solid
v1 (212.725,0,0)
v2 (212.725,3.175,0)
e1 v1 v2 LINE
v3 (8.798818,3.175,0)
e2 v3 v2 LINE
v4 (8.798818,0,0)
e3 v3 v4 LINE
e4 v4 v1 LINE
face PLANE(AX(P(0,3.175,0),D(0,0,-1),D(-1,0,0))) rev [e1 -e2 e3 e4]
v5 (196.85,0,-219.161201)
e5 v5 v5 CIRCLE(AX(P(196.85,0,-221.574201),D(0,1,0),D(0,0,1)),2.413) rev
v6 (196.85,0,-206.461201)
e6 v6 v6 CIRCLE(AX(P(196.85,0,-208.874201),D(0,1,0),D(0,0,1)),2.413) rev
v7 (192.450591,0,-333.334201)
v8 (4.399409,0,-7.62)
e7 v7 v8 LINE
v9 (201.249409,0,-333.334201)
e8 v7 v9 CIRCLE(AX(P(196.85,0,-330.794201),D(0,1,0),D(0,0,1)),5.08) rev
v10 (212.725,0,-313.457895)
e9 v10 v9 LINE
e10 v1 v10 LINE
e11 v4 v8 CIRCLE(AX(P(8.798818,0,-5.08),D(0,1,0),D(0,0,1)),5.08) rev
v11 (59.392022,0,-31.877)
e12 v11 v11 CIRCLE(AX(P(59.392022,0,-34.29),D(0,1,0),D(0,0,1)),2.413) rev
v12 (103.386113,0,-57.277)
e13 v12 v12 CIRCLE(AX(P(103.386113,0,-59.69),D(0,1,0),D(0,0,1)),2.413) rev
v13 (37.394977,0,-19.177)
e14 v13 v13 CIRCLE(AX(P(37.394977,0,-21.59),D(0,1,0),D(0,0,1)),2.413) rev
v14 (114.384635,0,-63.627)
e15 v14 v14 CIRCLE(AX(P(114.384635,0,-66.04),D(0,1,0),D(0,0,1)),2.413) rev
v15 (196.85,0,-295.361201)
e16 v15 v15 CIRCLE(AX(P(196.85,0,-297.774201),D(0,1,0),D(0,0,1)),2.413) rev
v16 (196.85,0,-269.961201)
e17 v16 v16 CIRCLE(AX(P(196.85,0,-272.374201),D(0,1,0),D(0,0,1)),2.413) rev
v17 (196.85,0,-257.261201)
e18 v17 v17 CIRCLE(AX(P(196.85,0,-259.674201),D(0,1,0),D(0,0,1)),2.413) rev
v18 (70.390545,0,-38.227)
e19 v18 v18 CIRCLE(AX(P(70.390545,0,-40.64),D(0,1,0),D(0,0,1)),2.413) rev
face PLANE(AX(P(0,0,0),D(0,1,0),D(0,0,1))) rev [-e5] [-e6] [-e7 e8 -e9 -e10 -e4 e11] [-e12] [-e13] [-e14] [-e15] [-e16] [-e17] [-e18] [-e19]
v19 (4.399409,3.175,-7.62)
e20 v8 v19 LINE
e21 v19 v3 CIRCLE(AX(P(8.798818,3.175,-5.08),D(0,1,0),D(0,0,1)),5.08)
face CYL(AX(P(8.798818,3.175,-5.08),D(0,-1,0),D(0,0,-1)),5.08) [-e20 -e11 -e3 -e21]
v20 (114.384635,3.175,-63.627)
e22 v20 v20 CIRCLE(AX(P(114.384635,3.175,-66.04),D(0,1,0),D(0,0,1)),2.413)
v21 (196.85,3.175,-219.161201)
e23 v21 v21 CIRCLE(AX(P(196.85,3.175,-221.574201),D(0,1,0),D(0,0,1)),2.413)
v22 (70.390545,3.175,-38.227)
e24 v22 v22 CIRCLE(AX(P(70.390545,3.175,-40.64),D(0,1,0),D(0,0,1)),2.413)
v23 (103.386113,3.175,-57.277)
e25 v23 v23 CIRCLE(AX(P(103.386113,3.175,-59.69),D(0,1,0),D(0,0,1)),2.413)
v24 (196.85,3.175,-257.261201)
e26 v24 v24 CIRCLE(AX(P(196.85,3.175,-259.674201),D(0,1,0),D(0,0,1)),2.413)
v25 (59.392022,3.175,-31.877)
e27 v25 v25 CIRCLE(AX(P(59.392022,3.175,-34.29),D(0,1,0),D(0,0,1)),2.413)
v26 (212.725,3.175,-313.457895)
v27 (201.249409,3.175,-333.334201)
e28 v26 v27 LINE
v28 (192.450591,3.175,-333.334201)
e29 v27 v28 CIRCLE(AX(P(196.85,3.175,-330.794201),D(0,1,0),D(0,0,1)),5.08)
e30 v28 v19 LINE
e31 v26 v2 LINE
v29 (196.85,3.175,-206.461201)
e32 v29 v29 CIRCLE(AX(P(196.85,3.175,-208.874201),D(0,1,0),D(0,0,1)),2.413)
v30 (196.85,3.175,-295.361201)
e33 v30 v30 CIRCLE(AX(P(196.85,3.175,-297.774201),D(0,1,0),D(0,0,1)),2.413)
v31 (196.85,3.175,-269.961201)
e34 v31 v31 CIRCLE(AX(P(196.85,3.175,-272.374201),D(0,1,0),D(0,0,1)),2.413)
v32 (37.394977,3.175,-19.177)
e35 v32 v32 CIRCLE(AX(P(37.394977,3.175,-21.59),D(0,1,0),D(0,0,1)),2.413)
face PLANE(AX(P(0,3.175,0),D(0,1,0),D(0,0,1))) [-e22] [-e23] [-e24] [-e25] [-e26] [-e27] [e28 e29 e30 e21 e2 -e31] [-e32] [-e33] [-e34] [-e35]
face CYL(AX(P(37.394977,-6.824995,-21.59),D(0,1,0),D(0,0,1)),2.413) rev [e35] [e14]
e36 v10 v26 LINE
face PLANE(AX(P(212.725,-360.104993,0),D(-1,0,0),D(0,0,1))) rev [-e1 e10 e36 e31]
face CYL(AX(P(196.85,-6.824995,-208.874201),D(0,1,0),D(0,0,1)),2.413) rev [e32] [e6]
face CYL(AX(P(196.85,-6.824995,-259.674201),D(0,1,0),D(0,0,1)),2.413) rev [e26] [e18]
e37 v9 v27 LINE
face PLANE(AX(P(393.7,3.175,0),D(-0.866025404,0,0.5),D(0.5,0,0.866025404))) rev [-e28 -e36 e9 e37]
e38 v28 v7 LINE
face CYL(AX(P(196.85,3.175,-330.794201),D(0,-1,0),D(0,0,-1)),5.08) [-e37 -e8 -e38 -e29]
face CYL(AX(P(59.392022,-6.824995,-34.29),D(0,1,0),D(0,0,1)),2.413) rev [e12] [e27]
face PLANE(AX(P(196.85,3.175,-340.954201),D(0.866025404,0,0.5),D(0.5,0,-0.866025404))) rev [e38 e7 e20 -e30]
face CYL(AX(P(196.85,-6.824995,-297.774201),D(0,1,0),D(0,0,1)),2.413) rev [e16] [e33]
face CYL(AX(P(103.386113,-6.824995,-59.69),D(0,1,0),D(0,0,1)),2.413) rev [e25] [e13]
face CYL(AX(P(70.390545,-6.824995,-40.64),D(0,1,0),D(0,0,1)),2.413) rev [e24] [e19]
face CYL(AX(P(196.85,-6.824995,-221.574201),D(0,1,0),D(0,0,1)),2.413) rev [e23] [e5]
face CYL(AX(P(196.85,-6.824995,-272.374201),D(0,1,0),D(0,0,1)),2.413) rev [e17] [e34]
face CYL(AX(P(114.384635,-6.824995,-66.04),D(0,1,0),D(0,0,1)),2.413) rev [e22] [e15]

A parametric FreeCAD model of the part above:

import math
import FreeCAD as App
import Part
import Sketcher
from FreeCAD import Vector
Q = App.Units.Quantity


def edges_at(feature, points):
    """Names of the edges that pass closest to the given points."""
    edges = feature.Shape.Edges
    near = lambda p: min(range(len(edges)), key=lambda i: edges[i].distToShape(Part.Vertex(*p))[0])
    return sorted({f"Edge{near(p) + 1}" for p in points})


def add_polygon(sketch, points):
    """Adds a closed chain of lines whose ends are joined by coincident constraints."""
    first, n = sketch.GeometryCount, len(points)
    for a, b in zip(points, points[1:] + points[:1]):
        sketch.addGeometry(Part.LineSegment(App.Vector(*a, 0), App.Vector(*b, 0)), False)
    for i in range(n):
        sketch.addConstraint(Sketcher.Constraint("Coincident", first + i, 2, first + (i + 1) % n, 1))

doc = App.newDocument("Part")
body = doc.addObject("PartDesign::Body", "Body")

# Sketch on XZ plane
sketch1 = body.newObject("Sketcher::SketchObject", "Sketch")
sketch1.AttachmentSupport = (doc.getObject("XZ_Plane"), [""])
sketch1.MapMode = "FlatFace"
add_polygon(sketch1, [(0, 0), (394, 0), (197, -341)])  # lines 0-2
sketch1.addConstraint(Sketcher.Constraint("Horizontal", 0))
sketch1.addConstraint(Sketcher.Constraint("Coincident", 2, 2, -1, 1))
sketch1.addConstraint(Sketcher.Constraint("Equal", 1, 2))
sketch1.addConstraint(Sketcher.Constraint("DistanceX", 0, 1, 0, 2, Q("15.5 in")))
sketch1.addConstraint(Sketcher.Constraint("Angle", 1, Q("-120 deg")))
pad1 = body.newObject("PartDesign::Pad", "Pad")
pad1.Profile = sketch1
pad1.Length = Q("0.125 in")
pad1.Reversed = True
doc.recompute()

fillet = body.newObject("PartDesign::Fillet", "Fillet")
fillet.Base = (pad1, edges_at(pad1, [(196.85, 1.587, -340.954), (393.7, 1.587, 0), (0, 1.587, 0)]))
fillet.Radius = Q("0.2 in")

# Sketch on XZ plane
sketch2 = body.newObject("Sketcher::SketchObject", "Sketch001")
sketch2.AttachmentSupport = (doc.getObject("XZ_Plane"), [""])
sketch2.MapMode = "FlatFace"
sketch2.AttachmentOffset = App.Placement(Vector(0, 0, -0.125 * 25.4), App.Rotation())
sketch2.addGeometry(Part.Circle(Vector(37.4, -21.6, 0), Vector(0, 0, 1), 2.4), False)
sketch2.addGeometry(Part.Circle(Vector(59.4, -34.3, 0), Vector(0, 0, 1), 2.4), False)
sketch2.addGeometry(Part.Circle(Vector(70.4, -40.6, 0), Vector(0, 0, 1), 2.4), False)
sketch2.addGeometry(Part.Circle(Vector(114.4, -66, 0), Vector(0, 0, 1), 2.4), False)
sketch2.addGeometry(Part.Circle(Vector(103.4, -59.7, 0), Vector(0, 0, 1), 2.4), False)
sketch2.addGeometry(Part.Circle(Vector(196.8, -297.8, 0), Vector(0, 0, 1), 2.4), False)
sketch2.addGeometry(Part.Circle(Vector(196.8, -272.4, 0), Vector(0, 0, 1), 2.4), False)
sketch2.addGeometry(Part.Circle(Vector(196.8, -259.7, 0), Vector(0, 0, 1), 2.4), False)
sketch2.addGeometry(Part.Circle(Vector(196.8, -221.6, 0), Vector(0, 0, 1), 2.4), False)
sketch2.addGeometry(Part.Circle(Vector(196.8, -208.9, 0), Vector(0, 0, 1), 2.4), False)
sketch2.addGeometry(Part.Circle(Vector(279.3, -66, 0), Vector(0, 0, 1), 2.4), False)
sketch2.addGeometry(Part.Circle(Vector(290.3, -59.7, 0), Vector(0, 0, 1), 2.4), False)
sketch2.addGeometry(Part.Circle(Vector(323.3, -40.6, 0), Vector(0, 0, 1), 2.4), False)
sketch2.addGeometry(Part.Circle(Vector(334.3, -34.3, 0), Vector(0, 0, 1), 2.4), False)
sketch2.addGeometry(Part.Circle(Vector(356.3, -21.6, 0), Vector(0, 0, 1), 2.4), False)
sketch2.addConstraint(Sketcher.Constraint("Equal", 0, 1))
sketch2.addConstraint(Sketcher.Constraint("Equal", 1, 2))
sketch2.addConstraint(Sketcher.Constraint("Equal", 2, 3))
sketch2.addConstraint(Sketcher.Constraint("Equal", 3, 4))
sketch2.addConstraint(Sketcher.Constraint("Equal", 4, 5))
sketch2.addConstraint(Sketcher.Constraint("Equal", 5, 6))
sketch2.addConstraint(Sketcher.Constraint("Equal", 6, 7))
sketch2.addConstraint(Sketcher.Constraint("Equal", 7, 8))
sketch2.addConstraint(Sketcher.Constraint("Equal", 8, 9))
sketch2.addConstraint(Sketcher.Constraint("Equal", 9, 10))
sketch2.addConstraint(Sketcher.Constraint("Equal", 10, 11))
sketch2.addConstraint(Sketcher.Constraint("Equal", 11, 12))
sketch2.addConstraint(Sketcher.Constraint("Equal", 12, 13))
sketch2.addConstraint(Sketcher.Constraint("Equal", 13, 14))
sketch2.addConstraint(Sketcher.Constraint("Horizontal", 3, 3, 10, 3))
sketch2.addConstraint(Sketcher.Constraint("Horizontal", 4, 3, 11, 3))
sketch2.addConstraint(Sketcher.Constraint("Horizontal", 2, 3, 12, 3))
sketch2.addConstraint(Sketcher.Constraint("Horizontal", 1, 3, 13, 3))
sketch2.addConstraint(Sketcher.Constraint("Horizontal", 0, 3, 14, 3))
sketch2.addConstraint(Sketcher.Constraint("Vertical", 5, 3, 6, 3))
sketch2.addConstraint(Sketcher.Constraint("Vertical", 6, 3, 7, 3))
sketch2.addConstraint(Sketcher.Constraint("Vertical", 7, 3, 8, 3))
sketch2.addConstraint(Sketcher.Constraint("Vertical", 8, 3, 9, 3))
sketch2.addConstraint(Sketcher.Constraint("Diameter", 0, Q("0.19 in")))
sketch2.addConstraint(Sketcher.Constraint("DistanceY", 3, 3, 2, 3, Q("1 in")))
sketch2.addConstraint(Sketcher.Constraint("DistanceY", 4, 3, 1, 3, Q("1 in")))
sketch2.addConstraint(Sketcher.Constraint("DistanceY", 5, 3, 6, 3, Q("1 in")))
sketch2.addConstraint(Sketcher.Constraint("DistanceY", 6, 3, 8, 3, Q("2 in")))
sketch2.addConstraint(Sketcher.Constraint("DistanceY", 7, 3, 9, 3, Q("2 in")))
sketch2.addConstraint(Sketcher.Constraint("DistanceY", 2, 3, -1, 1, Q("1.6 in")))
sketch2.addConstraint(Sketcher.Constraint("DistanceY", 1, 3, 0, 3, Q("0.5 in")))
sketch2.addConstraint(Sketcher.Constraint("DistanceY", 6, 3, 7, 3, Q("0.5 in")))
sketch2.addConstraint(Sketcher.Constraint("DistanceY", 0, 3, -1, 1, Q("0.85 in")))
sketch2.addConstraint(Sketcher.Constraint("DistanceX", -1, 1, 5, 3, Q("7.75 in")))
sketch2.addConstraint(Sketcher.Constraint("DistanceY", 5, 3, -1, 1, Q("297.774201 mm")))
sketch2.addConstraint(Sketcher.Constraint("DistanceX", 2, 3, 3, 3, Q("43.994091 mm")))
sketch2.addConstraint(Sketcher.Constraint("DistanceX", 0, 3, 3, 3, Q("76.989658 mm")))
sketch2.addConstraint(Sketcher.Constraint("DistanceX", 1, 3, 4, 3, Q("43.994091 mm")))
sketch2.addConstraint(Sketcher.Constraint("DistanceX", 3, 3, 10, 3, Q("164.930729 mm")))
sketch2.addConstraint(Sketcher.Constraint("DistanceX", 4, 3, 10, 3, Q("175.929252 mm")))
sketch2.addConstraint(Sketcher.Constraint("DistanceX", 3, 3, 11, 3, Q("175.929252 mm")))
sketch2.addConstraint(Sketcher.Constraint("DistanceX", 10, 3, 12, 3, Q("43.994091 mm")))
sketch2.addConstraint(Sketcher.Constraint("DistanceX", 11, 3, 13, 3, Q("43.994091 mm")))
sketch2.addConstraint(Sketcher.Constraint("DistanceX", 10, 3, 14, 3, Q("76.989658 mm")))
sketch2.addConstraint(Sketcher.Constraint("DistanceX", -1, 1, 0, 3, Q("37.394977 mm")))
pocket1 = body.newObject("PartDesign::Pocket", "Pocket")
pocket1.Profile = sketch2
pocket1.Length = Q("0.125 in")
pocket1.Reversed = True

# Sketch on XZ plane
sketch3 = body.newObject("Sketcher::SketchObject", "Sketch002")
sketch3.AttachmentSupport = (doc.getObject("XZ_Plane"), [""])
sketch3.MapMode = "FlatFace"
sketch3.AttachmentOffset = App.Placement(Vector(0, 0, -0.125 * 25.4), App.Rotation())
sketch3.addGeometry(Part.LineSegment(Vector(389.3, -7.6, 0), Vector(212.7, -313.5, 0)), False)
sketch3.addGeometry(Part.LineSegment(Vector(212.7, -313.5, 0), Vector(212.7, 0, 0)), False)
sketch3.addGeometry(Part.LineSegment(Vector(212.7, 0, 0), Vector(384.9, 0, 0)), False)
sketch3.addGeometry(Part.ArcOfCircle(Part.Circle(Vector(384.9, -5.1, 0), Vector(0, 0, 1), 5.1), math.radians(-30), math.radians(90)), False)
sketch3.addGeometry(Part.Circle(Vector(356.3, -21.6, 0), Vector(0, 0, 1), 2.4), False)
sketch3.addGeometry(Part.Circle(Vector(334.3, -34.3, 0), Vector(0, 0, 1), 2.4), False)
sketch3.addGeometry(Part.Circle(Vector(323.3, -40.6, 0), Vector(0, 0, 1), 2.4), False)
sketch3.addGeometry(Part.Circle(Vector(290.3, -59.7, 0), Vector(0, 0, 1), 2.4), False)
sketch3.addGeometry(Part.Circle(Vector(279.3, -66, 0), Vector(0, 0, 1), 2.4), False)
sketch3.addConstraint(Sketcher.Constraint("Coincident", 0, 2, 1, 1))
sketch3.addConstraint(Sketcher.Constraint("Coincident", 1, 2, 2, 1))
sketch3.addConstraint(Sketcher.Constraint("Tangent", 2, 2, 3, 2))
sketch3.addConstraint(Sketcher.Constraint("Tangent", 3, 1, 0, 1))
sketch3.addConstraint(Sketcher.Constraint("Vertical", 1))
sketch3.addConstraint(Sketcher.Constraint("Horizontal", 2))
sketch3.addConstraint(Sketcher.Constraint("Equal", 4, 5))
sketch3.addConstraint(Sketcher.Constraint("Equal", 5, 6))
sketch3.addConstraint(Sketcher.Constraint("Equal", 6, 7))
sketch3.addConstraint(Sketcher.Constraint("Equal", 7, 8))
sketch3.addConstraint(Sketcher.Constraint("PointOnObject", 1, 2, -1))
sketch3.addConstraint(Sketcher.Constraint("Radius", 3, Q("0.2 in")))
sketch3.addConstraint(Sketcher.Constraint("Diameter", 4, Q("0.19 in")))
sketch3.addConstraint(Sketcher.Constraint("Angle", 0, Q("-120 deg")))
sketch3.addConstraint(Sketcher.Constraint("DistanceY", 7, 3, 5, 3, Q("1 in")))
sketch3.addConstraint(Sketcher.Constraint("DistanceY", 8, 3, 6, 3, Q("1 in")))
sketch3.addConstraint(Sketcher.Constraint("DistanceY", 6, 3, -1, 1, Q("1.6 in")))
sketch3.addConstraint(Sketcher.Constraint("DistanceY", 5, 3, 4, 3, Q("0.5 in")))
sketch3.addConstraint(Sketcher.Constraint("DistanceY", 4, 3, -1, 1, Q("0.85 in")))
sketch3.addConstraint(Sketcher.Constraint("DistanceX", -1, 1, 0, 2, Q("8.375 in")))
sketch3.addConstraint(Sketcher.Constraint("DistanceX", 2, 1, 2, 2, Q("172.176182 mm")))
sketch3.addConstraint(Sketcher.Constraint("DistanceX", 4, 3, 3, 3, Q("28.596159 mm")))
sketch3.addConstraint(Sketcher.Constraint("DistanceX", 7, 3, 5, 3, Q("43.994091 mm")))
sketch3.addConstraint(Sketcher.Constraint("DistanceX", 8, 3, 6, 3, Q("43.994091 mm")))
sketch3.addConstraint(Sketcher.Constraint("DistanceX", 8, 3, 4, 3, Q("76.989658 mm")))
sketch3.addConstraint(Sketcher.Constraint("DistanceX", -1, 1, 5, 3, Q("334.307978 mm")))
pocket2 = body.newObject("PartDesign::Pocket", "Pocket001")
pocket2.Profile = sketch3
pocket2.Length = Q("0.125 in")
pocket2.Reversed = True

doc.recompute()
